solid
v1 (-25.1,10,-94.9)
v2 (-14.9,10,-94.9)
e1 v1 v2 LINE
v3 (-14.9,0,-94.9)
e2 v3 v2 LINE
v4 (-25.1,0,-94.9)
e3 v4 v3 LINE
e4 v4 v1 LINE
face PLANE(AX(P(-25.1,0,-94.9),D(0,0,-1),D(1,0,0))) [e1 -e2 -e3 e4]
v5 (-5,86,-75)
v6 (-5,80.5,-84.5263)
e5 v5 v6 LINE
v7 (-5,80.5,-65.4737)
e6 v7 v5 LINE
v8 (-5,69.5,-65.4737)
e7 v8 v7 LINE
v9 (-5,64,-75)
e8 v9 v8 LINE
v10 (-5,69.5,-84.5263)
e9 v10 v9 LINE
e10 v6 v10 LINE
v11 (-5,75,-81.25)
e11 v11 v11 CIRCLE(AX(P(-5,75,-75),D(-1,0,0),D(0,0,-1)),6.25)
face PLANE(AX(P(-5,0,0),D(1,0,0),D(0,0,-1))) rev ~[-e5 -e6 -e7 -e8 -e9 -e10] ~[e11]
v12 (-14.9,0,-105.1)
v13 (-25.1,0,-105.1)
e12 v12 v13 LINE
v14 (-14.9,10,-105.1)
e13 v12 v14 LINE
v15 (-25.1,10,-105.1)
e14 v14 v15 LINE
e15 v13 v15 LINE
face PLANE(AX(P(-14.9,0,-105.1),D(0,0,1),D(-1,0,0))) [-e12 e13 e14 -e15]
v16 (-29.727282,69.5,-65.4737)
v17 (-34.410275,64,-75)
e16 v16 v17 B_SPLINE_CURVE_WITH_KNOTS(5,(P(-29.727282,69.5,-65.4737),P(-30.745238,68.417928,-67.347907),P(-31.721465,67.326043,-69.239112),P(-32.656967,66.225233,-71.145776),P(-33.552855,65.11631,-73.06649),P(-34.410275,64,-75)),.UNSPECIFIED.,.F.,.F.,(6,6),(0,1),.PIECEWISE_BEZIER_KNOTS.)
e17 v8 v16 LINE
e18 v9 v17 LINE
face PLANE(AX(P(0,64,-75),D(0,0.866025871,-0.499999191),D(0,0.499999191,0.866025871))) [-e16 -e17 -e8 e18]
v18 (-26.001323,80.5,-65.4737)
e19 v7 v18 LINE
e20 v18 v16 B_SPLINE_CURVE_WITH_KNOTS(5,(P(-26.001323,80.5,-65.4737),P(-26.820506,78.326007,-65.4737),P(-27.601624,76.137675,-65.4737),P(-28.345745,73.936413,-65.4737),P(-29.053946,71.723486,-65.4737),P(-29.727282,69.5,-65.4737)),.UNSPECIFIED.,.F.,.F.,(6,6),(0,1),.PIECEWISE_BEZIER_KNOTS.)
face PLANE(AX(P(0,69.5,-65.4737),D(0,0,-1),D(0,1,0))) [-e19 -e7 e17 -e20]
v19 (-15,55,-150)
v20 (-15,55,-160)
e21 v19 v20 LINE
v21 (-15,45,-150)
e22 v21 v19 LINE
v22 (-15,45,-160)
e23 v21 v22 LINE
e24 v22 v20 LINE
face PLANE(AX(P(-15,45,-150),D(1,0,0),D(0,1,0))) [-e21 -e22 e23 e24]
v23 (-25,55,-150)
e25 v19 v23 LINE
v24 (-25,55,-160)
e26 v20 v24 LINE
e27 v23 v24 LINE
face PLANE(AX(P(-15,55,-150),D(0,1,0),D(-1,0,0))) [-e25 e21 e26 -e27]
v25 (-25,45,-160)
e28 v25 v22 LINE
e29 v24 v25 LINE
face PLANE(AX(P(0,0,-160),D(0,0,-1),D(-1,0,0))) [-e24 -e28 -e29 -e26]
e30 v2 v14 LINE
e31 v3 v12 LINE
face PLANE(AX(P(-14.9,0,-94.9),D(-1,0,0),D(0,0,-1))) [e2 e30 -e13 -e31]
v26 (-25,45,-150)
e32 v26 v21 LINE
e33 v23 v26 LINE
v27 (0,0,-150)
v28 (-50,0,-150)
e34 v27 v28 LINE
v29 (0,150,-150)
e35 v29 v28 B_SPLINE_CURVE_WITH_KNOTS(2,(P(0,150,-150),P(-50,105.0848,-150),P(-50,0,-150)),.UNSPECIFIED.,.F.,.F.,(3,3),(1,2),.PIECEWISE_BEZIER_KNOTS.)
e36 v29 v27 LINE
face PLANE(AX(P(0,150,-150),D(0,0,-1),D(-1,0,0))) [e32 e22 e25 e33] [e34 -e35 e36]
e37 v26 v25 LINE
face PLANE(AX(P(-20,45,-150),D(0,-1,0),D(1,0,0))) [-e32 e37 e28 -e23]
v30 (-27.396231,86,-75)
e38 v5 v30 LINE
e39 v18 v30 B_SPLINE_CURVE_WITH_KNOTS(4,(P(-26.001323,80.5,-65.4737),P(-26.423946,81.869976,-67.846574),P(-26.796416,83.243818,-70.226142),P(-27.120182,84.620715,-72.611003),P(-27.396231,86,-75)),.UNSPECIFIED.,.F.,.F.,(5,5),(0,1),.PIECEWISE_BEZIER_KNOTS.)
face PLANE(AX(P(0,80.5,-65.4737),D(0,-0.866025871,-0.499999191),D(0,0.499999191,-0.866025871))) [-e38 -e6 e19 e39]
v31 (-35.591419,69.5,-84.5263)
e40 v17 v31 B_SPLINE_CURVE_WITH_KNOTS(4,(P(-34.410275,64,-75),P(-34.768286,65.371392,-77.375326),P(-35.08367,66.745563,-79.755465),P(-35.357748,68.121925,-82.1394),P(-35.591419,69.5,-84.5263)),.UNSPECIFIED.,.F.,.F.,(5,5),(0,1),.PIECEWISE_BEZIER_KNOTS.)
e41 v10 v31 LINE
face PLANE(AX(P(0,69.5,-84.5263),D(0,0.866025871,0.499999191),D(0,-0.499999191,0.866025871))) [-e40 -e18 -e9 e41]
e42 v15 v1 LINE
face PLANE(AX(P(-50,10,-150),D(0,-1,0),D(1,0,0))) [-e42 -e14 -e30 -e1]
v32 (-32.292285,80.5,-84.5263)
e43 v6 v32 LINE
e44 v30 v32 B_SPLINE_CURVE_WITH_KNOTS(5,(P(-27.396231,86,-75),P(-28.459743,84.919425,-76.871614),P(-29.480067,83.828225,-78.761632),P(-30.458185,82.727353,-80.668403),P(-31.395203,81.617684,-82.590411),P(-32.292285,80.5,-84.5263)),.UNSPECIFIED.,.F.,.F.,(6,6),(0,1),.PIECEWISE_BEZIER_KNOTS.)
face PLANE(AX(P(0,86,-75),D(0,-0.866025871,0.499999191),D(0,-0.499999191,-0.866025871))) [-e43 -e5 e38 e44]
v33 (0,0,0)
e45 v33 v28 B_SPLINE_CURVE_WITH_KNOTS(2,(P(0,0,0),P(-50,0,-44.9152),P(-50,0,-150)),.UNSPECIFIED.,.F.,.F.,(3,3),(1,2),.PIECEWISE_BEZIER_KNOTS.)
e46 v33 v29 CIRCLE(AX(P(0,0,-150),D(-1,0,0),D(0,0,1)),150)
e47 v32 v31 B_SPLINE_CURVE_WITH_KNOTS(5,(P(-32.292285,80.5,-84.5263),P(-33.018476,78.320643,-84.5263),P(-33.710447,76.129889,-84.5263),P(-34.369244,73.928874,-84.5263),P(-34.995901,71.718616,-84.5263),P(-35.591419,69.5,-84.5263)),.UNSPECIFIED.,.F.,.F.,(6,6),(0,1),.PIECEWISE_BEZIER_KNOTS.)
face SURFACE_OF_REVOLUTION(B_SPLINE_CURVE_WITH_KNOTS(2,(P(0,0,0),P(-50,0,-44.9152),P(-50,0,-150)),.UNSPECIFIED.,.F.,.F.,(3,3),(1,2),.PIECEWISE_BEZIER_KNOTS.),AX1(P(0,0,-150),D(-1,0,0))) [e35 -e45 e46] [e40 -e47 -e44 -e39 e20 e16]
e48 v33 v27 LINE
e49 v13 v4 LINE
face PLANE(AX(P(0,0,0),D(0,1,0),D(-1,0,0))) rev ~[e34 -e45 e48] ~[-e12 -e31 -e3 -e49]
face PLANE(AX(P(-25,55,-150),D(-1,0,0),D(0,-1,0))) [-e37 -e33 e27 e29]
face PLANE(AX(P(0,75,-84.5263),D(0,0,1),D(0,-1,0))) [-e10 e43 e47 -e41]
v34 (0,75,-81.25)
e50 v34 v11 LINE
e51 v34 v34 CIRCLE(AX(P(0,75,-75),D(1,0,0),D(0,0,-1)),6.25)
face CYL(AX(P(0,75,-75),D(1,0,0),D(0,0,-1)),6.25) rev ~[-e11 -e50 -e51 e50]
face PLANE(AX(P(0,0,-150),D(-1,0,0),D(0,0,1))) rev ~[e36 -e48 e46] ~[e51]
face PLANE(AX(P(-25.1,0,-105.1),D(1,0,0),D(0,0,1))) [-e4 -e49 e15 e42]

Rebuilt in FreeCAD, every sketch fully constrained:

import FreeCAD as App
import Part
import Sketcher

V = App.Vector
Q = App.Units.Quantity


def add_polygon(sketch, points):
    """Adds a closed chain of lines whose ends are joined by coincident constraints."""
    first, n = sketch.GeometryCount, len(points)
    for a, b in zip(points, points[1:] + points[:1]):
        sketch.addGeometry(Part.LineSegment(App.Vector(*a, 0), App.Vector(*b, 0)), False)
    for i in range(n):
        sketch.addConstraint(Sketcher.Constraint("Coincident", first + i, 2, first + (i + 1) % n, 1))

doc = App.newDocument("Part")
body = doc.addObject("PartDesign::Body", "Body")

# Sketch on XZ plane
sketch1 = doc.addObject("Sketcher::SketchObject", "Sketch")
body.addObject(sketch1)
sketch1.AttachmentSupport = (doc.XZ_Plane, [""])
sketch1.MapMode = "FlatFace"
sketch1.addGeometry([
    Part.BSplineCurve([V(0, 0, 0), V(-50, -44.9152, 0), V(-50, -150, 0)], [3, 3], [1, 2], False, 2, [1, 1, 1], False),
    Part.LineSegment(V(0, 0, 0), V(0, -150, 0)),
    Part.LineSegment(V(0, -150, 0), V(-50, -150, 0)),
], False)
sketch1.addGeometry(Part.LineSegment(V(0, -150, 0), V(-50, -150, 0)), True)  # axis
sketch1.addConstraint([
    Sketcher.Constraint("Block", 0),
    Sketcher.Constraint("Coincident", 0, 1, 1, 1),
    Sketcher.Constraint("Coincident", 1, 2, 2, 1),
    Sketcher.Constraint("Coincident", 2, 2, 0, 2),
    Sketcher.Constraint("Vertical", 1),
    Sketcher.Constraint("Horizontal", 2),
    Sketcher.Constraint("Horizontal", 3),
    Sketcher.Constraint("Coincident", 3, 1, 1, 2),
    Sketcher.Constraint("Equal", 2, 3),
])
revolution = doc.addObject("PartDesign::Revolution", "Revolution")
body.addObject(revolution)
revolution.Profile = sketch1
revolution.ReferenceAxis = (sketch1, ["Axis0"])
revolution.Angle = 90

# Sketch on XY plane
sketch2 = doc.addObject("Sketcher::SketchObject", "Sketch001")
body.addObject(sketch2)
sketch2.AttachmentSupport = (doc.XY_Plane, [""])
sketch2.MapMode = "FlatFace"
sketch2.AttachmentOffset = App.Placement(V(0, 0, -150), App.Rotation())
add_polygon(sketch2, [(-25, 55), (-15, 55), (-15, 45), (-25, 45)])  # lines 0-3
sketch2.addConstraint([
    Sketcher.Constraint("Horizontal", 0),
    Sketcher.Constraint("Vertical", 1),
    Sketcher.Constraint("Horizontal", 2),
    Sketcher.Constraint("Vertical", 3),
    Sketcher.Constraint("Equal", 2, 1),
    Sketcher.Constraint("DistanceX", 0, 1, 0, 2, 10.0),
    Sketcher.Constraint("DistanceX", 0, 2, -1, 1, 15.0),
    Sketcher.Constraint("DistanceY", -1, 1, 0, 2, 55.0),
])
pad1 = doc.addObject("PartDesign::Pad", "Pad")
body.addObject(pad1)
pad1.Profile = sketch2
pad1.Length = 10
pad1.Reversed = True

# Sketch on XZ plane
sketch3 = doc.addObject("Sketcher::SketchObject", "Sketch002")
body.addObject(sketch3)
sketch3.AttachmentSupport = (doc.XZ_Plane, [""])
sketch3.MapMode = "FlatFace"
add_polygon(sketch3, [(-25, -105), (-15, -105), (-15, -95), (-25, -95)])  # lines 0-3
sketch3.addConstraint([
    Sketcher.Constraint("Horizontal", 0),
    Sketcher.Constraint("Vertical", 1),
    Sketcher.Constraint("Horizontal", 2),
    Sketcher.Constraint("Vertical", 3),
    Sketcher.Constraint("Equal", 2, 1),
    Sketcher.Constraint("DistanceX", 0, 1, 0, 2, 10.2),
    Sketcher.Constraint("DistanceX", 0, 2, -1, 1, 14.9),
    Sketcher.Constraint("DistanceY", 0, 2, -1, 1, 105.1),
])
pocket1 = doc.addObject("PartDesign::Pocket", "Pocket")
body.addObject(pocket1)
pocket1.Profile = sketch3
pocket1.Length = 10

# Sketch on YZ plane
sketch4 = doc.addObject("Sketcher::SketchObject", "Sketch003")
body.addObject(sketch4)
sketch4.AttachmentSupport = (doc.YZ_Plane, [""])
sketch4.MapMode = "FlatFace"
add_polygon(sketch4, [(70, -85), (80, -85), (86, -75), (80, -65), (70, -65), (64, -75)])  # lines 0-5
sketch4.addConstraint([
    Sketcher.Constraint("Horizontal", 0),
    Sketcher.Constraint("Horizontal", 3),
    Sketcher.Constraint("Parallel", 1, 4),
    Sketcher.Constraint("Parallel", 2, 5),
    Sketcher.Constraint("Horizontal", 1, 2, 4, 2),
    Sketcher.Constraint("Vertical", 0, 2, 2, 2),
    Sketcher.Constraint("Vertical", 3, 2, 5, 2),
    Sketcher.Constraint("DistanceX", 0, 1, 0, 2, 11.0),
    Sketcher.Constraint("Distance", 1, 11.0),
    Sketcher.Constraint("DistanceY", 1, 2, -1, 1, 75.0),
    Sketcher.Constraint("Angle", 1, Q("60 deg")),
    Sketcher.Constraint("DistanceX", -1, 1, 1, 2, 86.0),
])
pocket2 = doc.addObject("PartDesign::Pocket", "Pocket001")
body.addObject(pocket2)
pocket2.Profile = sketch4
pocket2.Length = 59.85

# Sketch on YZ plane
sketch5 = doc.addObject("Sketcher::SketchObject", "Sketch004")
body.addObject(sketch5)
sketch5.AttachmentSupport = (doc.YZ_Plane, [""])
sketch5.MapMode = "FlatFace"
add_polygon(sketch5, [(80, -85), (86, -75), (80, -65), (70, -65), (64, -75), (70, -85)])  # lines 0-5
sketch5.addGeometry(Part.Circle(V(75, -75, 0), V(0, 0, 1), 6), False)  # 6
sketch5.addConstraint([
    Sketcher.Constraint("Horizontal", 2),
    Sketcher.Constraint("Horizontal", 5),
    Sketcher.Constraint("Parallel", 0, 3),
    Sketcher.Constraint("Parallel", 1, 4),
    Sketcher.Constraint("Horizontal", 6, 3, 0, 2),
    Sketcher.Constraint("Horizontal", 0, 2, 3, 2),
    Sketcher.Constraint("Vertical", 2, 2, 4, 2),
    Sketcher.Constraint("Vertical", 1, 2, 5, 2),
    Sketcher.Constraint("Diameter", 6, 12.5),
    Sketcher.Constraint("DistanceX", 2, 2, 2, 1, 11.0),
    Sketcher.Constraint("Distance", 0, 11.0),
    Sketcher.Constraint("DistanceX", -1, 1, 6, 3, 75.0),
    Sketcher.Constraint("DistanceY", 6, 3, -1, 1, 75.0),
    Sketcher.Constraint("DistanceX", 6, 3, 0, 2, 11.0),
    Sketcher.Constraint("DistanceX", 3, 2, 6, 3, 11.0),
])
pad2 = doc.addObject("PartDesign::Pad", "Pad001")
body.addObject(pad2)
pad2.Profile = sketch5
pad2.Length = 5
pad2.Reversed = True

doc.recompute()
